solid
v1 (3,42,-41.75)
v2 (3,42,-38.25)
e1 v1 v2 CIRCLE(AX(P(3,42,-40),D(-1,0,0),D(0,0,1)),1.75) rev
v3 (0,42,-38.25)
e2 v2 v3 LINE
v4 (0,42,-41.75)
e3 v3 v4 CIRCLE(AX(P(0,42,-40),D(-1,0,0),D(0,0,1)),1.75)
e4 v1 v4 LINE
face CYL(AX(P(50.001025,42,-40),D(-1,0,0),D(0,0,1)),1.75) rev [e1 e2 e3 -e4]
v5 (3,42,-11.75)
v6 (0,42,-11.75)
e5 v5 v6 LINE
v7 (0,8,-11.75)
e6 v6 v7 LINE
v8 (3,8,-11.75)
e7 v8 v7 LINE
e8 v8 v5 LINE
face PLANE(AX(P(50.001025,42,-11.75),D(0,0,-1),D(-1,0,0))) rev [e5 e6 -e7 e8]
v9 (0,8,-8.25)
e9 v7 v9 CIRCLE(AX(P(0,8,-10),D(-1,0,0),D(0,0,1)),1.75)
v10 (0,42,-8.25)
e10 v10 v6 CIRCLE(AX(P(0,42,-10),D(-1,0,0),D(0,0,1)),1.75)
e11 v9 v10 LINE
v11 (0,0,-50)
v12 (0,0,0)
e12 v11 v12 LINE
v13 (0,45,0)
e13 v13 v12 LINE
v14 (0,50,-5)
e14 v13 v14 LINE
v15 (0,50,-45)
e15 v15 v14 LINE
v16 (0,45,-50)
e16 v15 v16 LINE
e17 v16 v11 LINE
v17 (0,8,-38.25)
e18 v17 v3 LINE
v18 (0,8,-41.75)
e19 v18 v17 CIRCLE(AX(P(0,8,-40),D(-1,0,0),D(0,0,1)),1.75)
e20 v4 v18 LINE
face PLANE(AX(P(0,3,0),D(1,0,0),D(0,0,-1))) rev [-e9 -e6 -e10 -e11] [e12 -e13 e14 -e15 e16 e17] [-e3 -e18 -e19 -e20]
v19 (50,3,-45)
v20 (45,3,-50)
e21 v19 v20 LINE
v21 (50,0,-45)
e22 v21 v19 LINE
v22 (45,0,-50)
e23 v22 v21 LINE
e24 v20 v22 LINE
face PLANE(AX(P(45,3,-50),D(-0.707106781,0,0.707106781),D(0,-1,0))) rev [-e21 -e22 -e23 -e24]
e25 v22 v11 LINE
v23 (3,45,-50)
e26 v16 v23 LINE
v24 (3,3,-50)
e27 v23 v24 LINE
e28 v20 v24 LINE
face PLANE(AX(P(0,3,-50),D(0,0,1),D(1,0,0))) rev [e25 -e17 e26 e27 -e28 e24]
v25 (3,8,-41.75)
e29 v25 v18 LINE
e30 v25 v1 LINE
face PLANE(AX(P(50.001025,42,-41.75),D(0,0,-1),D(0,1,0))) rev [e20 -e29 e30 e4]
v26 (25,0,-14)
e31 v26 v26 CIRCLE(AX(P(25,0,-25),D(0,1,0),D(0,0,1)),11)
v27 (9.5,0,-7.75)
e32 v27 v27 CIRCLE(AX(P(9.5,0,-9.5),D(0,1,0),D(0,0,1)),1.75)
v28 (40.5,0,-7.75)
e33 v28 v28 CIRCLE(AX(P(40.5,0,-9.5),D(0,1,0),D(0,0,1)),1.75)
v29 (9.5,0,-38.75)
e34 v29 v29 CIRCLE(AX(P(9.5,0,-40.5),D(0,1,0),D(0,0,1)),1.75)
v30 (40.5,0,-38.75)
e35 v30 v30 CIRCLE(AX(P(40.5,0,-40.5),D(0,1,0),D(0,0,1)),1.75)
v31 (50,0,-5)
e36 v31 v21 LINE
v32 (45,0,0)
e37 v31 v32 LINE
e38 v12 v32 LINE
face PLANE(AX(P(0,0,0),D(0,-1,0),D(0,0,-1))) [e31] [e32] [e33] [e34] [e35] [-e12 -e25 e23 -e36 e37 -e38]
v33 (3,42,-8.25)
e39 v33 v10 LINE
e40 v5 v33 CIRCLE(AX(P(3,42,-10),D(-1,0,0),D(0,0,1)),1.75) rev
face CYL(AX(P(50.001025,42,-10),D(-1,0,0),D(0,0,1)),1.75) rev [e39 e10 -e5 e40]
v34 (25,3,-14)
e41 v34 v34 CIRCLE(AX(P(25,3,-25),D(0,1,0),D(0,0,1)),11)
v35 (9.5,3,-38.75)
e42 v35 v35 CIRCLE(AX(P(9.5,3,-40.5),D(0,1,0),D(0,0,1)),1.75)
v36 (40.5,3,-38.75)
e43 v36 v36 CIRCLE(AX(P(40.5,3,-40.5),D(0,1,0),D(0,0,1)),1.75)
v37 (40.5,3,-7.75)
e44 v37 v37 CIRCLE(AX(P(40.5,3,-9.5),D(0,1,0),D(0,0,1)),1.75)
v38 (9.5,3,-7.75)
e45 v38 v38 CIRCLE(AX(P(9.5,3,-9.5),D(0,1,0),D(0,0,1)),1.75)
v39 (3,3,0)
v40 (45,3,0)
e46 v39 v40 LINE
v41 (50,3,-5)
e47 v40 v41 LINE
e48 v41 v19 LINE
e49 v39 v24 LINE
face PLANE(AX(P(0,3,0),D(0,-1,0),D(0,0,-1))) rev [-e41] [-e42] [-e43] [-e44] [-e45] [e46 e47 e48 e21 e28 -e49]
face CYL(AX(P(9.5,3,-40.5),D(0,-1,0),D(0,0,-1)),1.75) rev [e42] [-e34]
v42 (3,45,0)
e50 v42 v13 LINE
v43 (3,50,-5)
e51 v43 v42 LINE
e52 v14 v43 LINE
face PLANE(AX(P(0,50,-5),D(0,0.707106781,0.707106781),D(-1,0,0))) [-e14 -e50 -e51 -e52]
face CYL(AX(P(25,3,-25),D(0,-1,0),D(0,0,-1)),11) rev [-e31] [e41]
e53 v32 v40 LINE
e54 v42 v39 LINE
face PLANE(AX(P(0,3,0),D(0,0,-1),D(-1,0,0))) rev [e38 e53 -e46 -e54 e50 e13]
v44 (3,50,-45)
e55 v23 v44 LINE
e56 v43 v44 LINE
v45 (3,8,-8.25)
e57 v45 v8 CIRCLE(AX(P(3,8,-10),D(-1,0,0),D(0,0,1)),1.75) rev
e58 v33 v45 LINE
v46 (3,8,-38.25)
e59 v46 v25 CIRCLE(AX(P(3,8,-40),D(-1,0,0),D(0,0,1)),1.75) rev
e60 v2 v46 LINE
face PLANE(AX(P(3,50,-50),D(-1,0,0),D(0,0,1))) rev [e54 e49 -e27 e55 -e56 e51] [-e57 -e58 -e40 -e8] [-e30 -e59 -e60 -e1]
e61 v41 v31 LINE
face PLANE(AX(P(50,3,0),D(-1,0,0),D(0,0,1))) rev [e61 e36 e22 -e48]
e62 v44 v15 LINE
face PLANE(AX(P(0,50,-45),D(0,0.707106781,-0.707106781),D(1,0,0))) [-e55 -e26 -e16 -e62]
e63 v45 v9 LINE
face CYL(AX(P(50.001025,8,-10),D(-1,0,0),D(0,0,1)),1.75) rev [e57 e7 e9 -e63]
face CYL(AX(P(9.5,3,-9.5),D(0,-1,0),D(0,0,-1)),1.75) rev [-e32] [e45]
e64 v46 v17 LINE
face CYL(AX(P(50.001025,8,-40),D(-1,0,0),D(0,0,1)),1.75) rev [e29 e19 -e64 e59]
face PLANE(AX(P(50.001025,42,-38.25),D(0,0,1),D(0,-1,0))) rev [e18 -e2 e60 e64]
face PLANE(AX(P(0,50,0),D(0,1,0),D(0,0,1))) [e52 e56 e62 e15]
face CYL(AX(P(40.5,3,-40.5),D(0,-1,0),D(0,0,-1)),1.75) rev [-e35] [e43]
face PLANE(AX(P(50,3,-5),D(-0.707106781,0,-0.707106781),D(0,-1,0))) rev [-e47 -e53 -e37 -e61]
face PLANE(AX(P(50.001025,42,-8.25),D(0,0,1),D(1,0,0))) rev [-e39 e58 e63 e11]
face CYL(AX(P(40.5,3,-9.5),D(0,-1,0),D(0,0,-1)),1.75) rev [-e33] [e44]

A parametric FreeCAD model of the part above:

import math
import FreeCAD as App
import Part
import Sketcher
Q = App.Units.Quantity


def edges_at(feature, points):
    """Names of the edges that pass closest to the given points."""
    edges = feature.Shape.Edges
    near = lambda p: min(range(len(edges)), key=lambda i: edges[i].distToShape(Part.Vertex(*p))[0])
    return sorted({f"Edge{near(p) + 1}" for p in points})


def add_polygon(sketch, points):
    """Adds a closed chain of lines whose ends are joined by coincident constraints."""
    first, n = sketch.GeometryCount, len(points)
    for a, b in zip(points, points[1:] + points[:1]):
        sketch.addGeometry(Part.LineSegment(App.Vector(*a, 0), App.Vector(*b, 0)), False)
    for i in range(n):
        sketch.addConstraint(Sketcher.Constraint("Coincident", first + i, 2, first + (i + 1) % n, 1))

doc = App.newDocument("Part")
body = doc.addObject("PartDesign::Body", "Body")

# Sketch on XZ plane
sketch1 = body.newObject("Sketcher::SketchObject", "Sketch")
sketch1.AttachmentSupport = (doc.getObject("XZ_Plane"), [""])
sketch1.MapMode = "FlatFace"
add_polygon(sketch1, [(0, -50), (0, 0), (50, 0), (50, -50)])  # lines 0-3
sketch1.addGeometry(Part.Circle(App.Vector(9.5, -9.5, 0), App.Vector(0, 0, 1), 1.8), False)  # 4
sketch1.addGeometry(Part.Circle(App.Vector(40.5, -9.5, 0), App.Vector(0, 0, 1), 1.8), False)  # 5
sketch1.addGeometry(Part.Circle(App.Vector(9.5, -40.5, 0), App.Vector(0, 0, 1), 1.8), False)  # 6
sketch1.addGeometry(Part.Circle(App.Vector(25, -25, 0), App.Vector(0, 0, 1), 11), False)  # 7
sketch1.addGeometry(Part.Circle(App.Vector(40.5, -40.5, 0), App.Vector(0, 0, 1), 1.8), False)  # 8
sketch1.addConstraint(Sketcher.Constraint("Vertical", 0))
sketch1.addConstraint(Sketcher.Constraint("Horizontal", 1))
sketch1.addConstraint(Sketcher.Constraint("Vertical", 2))
sketch1.addConstraint(Sketcher.Constraint("Horizontal", 3))
sketch1.addConstraint(Sketcher.Constraint("Coincident", 0, 2, -1, 1))
sketch1.addConstraint(Sketcher.Constraint("Equal", 4, 5))
sketch1.addConstraint(Sketcher.Constraint("Equal", 5, 6))
sketch1.addConstraint(Sketcher.Constraint("Equal", 6, 8))
sketch1.addConstraint(Sketcher.Constraint("Horizontal", 4, 3, 5, 3))
sketch1.addConstraint(Sketcher.Constraint("Horizontal", 6, 3, 8, 3))
sketch1.addConstraint(Sketcher.Constraint("Vertical", 4, 3, 6, 3))
sketch1.addConstraint(Sketcher.Constraint("Vertical", 5, 3, 8, 3))
sketch1.addConstraint(Sketcher.Constraint("Equal", 3, 0))
sketch1.addConstraint(Sketcher.Constraint("Diameter", 7, Q("22 mm")))
sketch1.addConstraint(Sketcher.Constraint("Diameter", 4, Q("3.5 mm")))
sketch1.addConstraint(Sketcher.Constraint("DistanceX", 1, 1, 1, 2, Q("50 mm")))
sketch1.addConstraint(Sketcher.Constraint("DistanceX", -1, 1, 7, 3, Q("25 mm")))
sketch1.addConstraint(Sketcher.Constraint("DistanceY", 7, 3, -1, 1, Q("25 mm")))
sketch1.addConstraint(Sketcher.Constraint("DistanceX", 4, 3, 5, 3, Q("31 mm")))
sketch1.addConstraint(Sketcher.Constraint("DistanceY", 6, 3, 4, 3, Q("31 mm")))
sketch1.addConstraint(Sketcher.Constraint("DistanceX", -1, 1, 4, 3, Q("9.5 mm")))
sketch1.addConstraint(Sketcher.Constraint("DistanceY", 4, 3, -1, 1, Q("9.5 mm")))
pad1 = body.newObject("PartDesign::Pad", "Pad")
pad1.Profile = sketch1
pad1.Length = 3
pad1.Reversed = True

# Sketch on XZ plane
sketch2 = body.newObject("Sketcher::SketchObject", "Sketch001")
sketch2.AttachmentSupport = (doc.getObject("XZ_Plane"), [""])
sketch2.MapMode = "FlatFace"
sketch2.AttachmentOffset = App.Placement(App.Vector(0, 0, -3), App.Rotation())
add_polygon(sketch2, [(0, -50), (0, 0), (3, 0), (3, -50)])  # lines 0-3
sketch2.addConstraint(Sketcher.Constraint("Vertical", 0))
sketch2.addConstraint(Sketcher.Constraint("Horizontal", 1))
sketch2.addConstraint(Sketcher.Constraint("Vertical", 2))
sketch2.addConstraint(Sketcher.Constraint("Horizontal", 3))
sketch2.addConstraint(Sketcher.Constraint("Coincident", 0, 2, -1, 1))
sketch2.addConstraint(Sketcher.Constraint("DistanceX", 1, 1, 1, 2, Q("3 mm")))
sketch2.addConstraint(Sketcher.Constraint("DistanceY", 0, 1, 0, 2, Q("50 mm")))
pad2 = body.newObject("PartDesign::Pad", "Pad001")
pad2.Profile = sketch2
pad2.Length = 47
pad2.Reversed = True

# Sketch on YZ plane
sketch3 = body.newObject("Sketcher::SketchObject", "Sketch002")
sketch3.AttachmentSupport = (doc.getObject("YZ_Plane"), [""])
sketch3.MapMode = "FlatFace"
sketch3.addGeometry(Part.LineSegment(App.Vector(8, -38.2, 0), App.Vector(42, -38.2, 0)), False)
sketch3.addGeometry(Part.ArcOfCircle(Part.Circle(App.Vector(42, -40, 0), App.Vector(0, 0, 1), 1.8), math.radians(-90), math.radians(90)), False)
sketch3.addGeometry(Part.LineSegment(App.Vector(42, -41.8, 0), App.Vector(8, -41.8, 0)), False)
sketch3.addGeometry(Part.ArcOfCircle(Part.Circle(App.Vector(8, -40, 0), App.Vector(0, 0, 1), 1.8), math.radians(90), math.radians(270)), False)
sketch3.addConstraint(Sketcher.Constraint("Tangent", 0, 2, 1, 2))
sketch3.addConstraint(Sketcher.Constraint("Tangent", 1, 1, 2, 1))
sketch3.addConstraint(Sketcher.Constraint("Tangent", 2, 2, 3, 2))
sketch3.addConstraint(Sketcher.Constraint("Tangent", 3, 1, 0, 1))
sketch3.addConstraint(Sketcher.Constraint("Horizontal", 0))
sketch3.addConstraint(Sketcher.Constraint("Horizontal", 2))
sketch3.addConstraint(Sketcher.Constraint("DistanceX", 0, 1, 0, 2, Q("34 mm")))
sketch3.addConstraint(Sketcher.Constraint("Radius", 1, Q("1.75 mm")))
sketch3.addConstraint(Sketcher.Constraint("DistanceX", -1, 1, 1, 3, Q("42 mm")))
sketch3.addConstraint(Sketcher.Constraint("DistanceY", 1, 3, -1, 1, Q("40 mm")))
pocket1 = body.newObject("PartDesign::Pocket", "Pocket")
pocket1.Profile = sketch3
pocket1.Type = "UpToFirst"
pocket1.Reversed = True

# Sketch on YZ plane
sketch4 = body.newObject("Sketcher::SketchObject", "Sketch003")
sketch4.AttachmentSupport = (doc.getObject("YZ_Plane"), [""])
sketch4.MapMode = "FlatFace"
sketch4.addGeometry(Part.LineSegment(App.Vector(42, -11.8, 0), App.Vector(8, -11.8, 0)), False)
sketch4.addGeometry(Part.ArcOfCircle(Part.Circle(App.Vector(8, -10, 0), App.Vector(0, 0, 1), 1.8), math.radians(90), math.radians(270)), False)
sketch4.addGeometry(Part.LineSegment(App.Vector(8, -8.2, 0), App.Vector(42, -8.2, 0)), False)
sketch4.addGeometry(Part.ArcOfCircle(Part.Circle(App.Vector(42, -10, 0), App.Vector(0, 0, 1), 1.8), math.radians(-90), math.radians(90)), False)
sketch4.addConstraint(Sketcher.Constraint("Tangent", 0, 2, 1, 2))
sketch4.addConstraint(Sketcher.Constraint("Tangent", 1, 1, 2, 1))
sketch4.addConstraint(Sketcher.Constraint("Tangent", 2, 2, 3, 2))
sketch4.addConstraint(Sketcher.Constraint("Tangent", 3, 1, 0, 1))
sketch4.addConstraint(Sketcher.Constraint("Horizontal", 0))
sketch4.addConstraint(Sketcher.Constraint("Horizontal", 2))
sketch4.addConstraint(Sketcher.Constraint("DistanceX", 0, 2, 0, 1, Q("34 mm")))
sketch4.addConstraint(Sketcher.Constraint("Radius", 1, Q("1.75 mm")))
sketch4.addConstraint(Sketcher.Constraint("DistanceX", -1, 1, 1, 3, Q("8 mm")))
sketch4.addConstraint(Sketcher.Constraint("DistanceY", 1, 3, -1, 1, Q("10 mm")))
pocket2 = body.newObject("PartDesign::Pocket", "Pocket001")
pocket2.Profile = sketch4
pocket2.Type = "UpToFirst"
pocket2.Reversed = True
doc.recompute()

chamfer = body.newObject("PartDesign::Chamfer", "Chamfer")
chamfer.Base = (pocket2, edges_at(pocket2, [(1.5, 50, 0), (1.5, 50, -50)]))
chamfer.Size = 5
doc.recompute()

chamfer2 = body.newObject("PartDesign::Chamfer", "Chamfer001")
chamfer2.Base = (chamfer, edges_at(chamfer, [(50, 1.5, -50), (50, 1.5, 0)]))
chamfer2.Size = 5

doc.recompute()
